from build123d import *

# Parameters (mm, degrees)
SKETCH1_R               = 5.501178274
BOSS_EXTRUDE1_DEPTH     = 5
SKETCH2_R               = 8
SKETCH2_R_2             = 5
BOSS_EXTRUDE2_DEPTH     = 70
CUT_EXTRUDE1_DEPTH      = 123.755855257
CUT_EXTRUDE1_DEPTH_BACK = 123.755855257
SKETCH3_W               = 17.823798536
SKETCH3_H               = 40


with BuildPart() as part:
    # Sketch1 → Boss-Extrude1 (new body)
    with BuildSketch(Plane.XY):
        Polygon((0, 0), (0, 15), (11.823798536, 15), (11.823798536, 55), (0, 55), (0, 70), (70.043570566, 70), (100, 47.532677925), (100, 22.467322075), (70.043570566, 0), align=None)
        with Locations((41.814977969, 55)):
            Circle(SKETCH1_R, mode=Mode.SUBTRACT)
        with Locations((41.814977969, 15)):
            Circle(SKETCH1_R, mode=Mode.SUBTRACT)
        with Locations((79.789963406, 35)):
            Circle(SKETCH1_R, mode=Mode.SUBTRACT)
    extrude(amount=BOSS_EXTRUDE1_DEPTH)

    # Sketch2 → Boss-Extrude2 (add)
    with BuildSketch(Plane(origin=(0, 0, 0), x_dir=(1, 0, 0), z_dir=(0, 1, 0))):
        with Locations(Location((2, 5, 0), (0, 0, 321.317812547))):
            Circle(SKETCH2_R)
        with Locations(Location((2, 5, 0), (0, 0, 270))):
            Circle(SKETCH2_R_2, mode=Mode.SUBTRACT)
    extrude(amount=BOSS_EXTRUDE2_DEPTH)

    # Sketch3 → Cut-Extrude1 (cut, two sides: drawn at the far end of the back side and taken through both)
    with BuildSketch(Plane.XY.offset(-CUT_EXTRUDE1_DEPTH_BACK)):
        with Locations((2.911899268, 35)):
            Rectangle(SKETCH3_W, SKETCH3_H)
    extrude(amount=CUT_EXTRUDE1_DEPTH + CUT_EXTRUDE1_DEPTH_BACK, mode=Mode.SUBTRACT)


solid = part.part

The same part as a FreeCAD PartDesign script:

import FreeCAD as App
import Part
import Sketcher
Q = App.Units.Quantity


def add_polygon(sketch, points):
    """Adds a closed chain of lines whose ends are joined by coincident constraints."""
    first, n = sketch.GeometryCount, len(points)
    for a, b in zip(points, points[1:] + points[:1]):
        sketch.addGeometry(Part.LineSegment(App.Vector(*a, 0), App.Vector(*b, 0)), False)
    for i in range(n):
        sketch.addConstraint(Sketcher.Constraint("Coincident", first + i, 2, first + (i + 1) % n, 1))

doc = App.newDocument("Part")
body = doc.addObject("PartDesign::Body", "Body")

# Sketch on XY plane
sketch1 = body.newObject("Sketcher::SketchObject", "Sketch")
sketch1.AttachmentSupport = (doc.getObject("XY_Plane"), [""])
sketch1.MapMode = "FlatFace"
add_polygon(sketch1, [(0, 15), (0, 0), (70, 0), (100, 22), (100, 48), (70, 70), (0, 70), (0, 55), (12, 55), (12, 15)])  # lines 0-9
sketch1.addGeometry(Part.Circle(App.Vector(42, 15, 0), App.Vector(0, 0, 1), 6), False)  # 10
sketch1.addGeometry(Part.Circle(App.Vector(80, 35, 0), App.Vector(0, 0, 1), 6), False)  # 11
sketch1.addGeometry(Part.Circle(App.Vector(42, 55, 0), App.Vector(0, 0, 1), 6), False)  # 12
sketch1.addConstraint(Sketcher.Constraint("Vertical", 0))
sketch1.addConstraint(Sketcher.Constraint("Horizontal", 1))
sketch1.addConstraint(Sketcher.Constraint("Vertical", 3))
sketch1.addConstraint(Sketcher.Constraint("Horizontal", 5))
sketch1.addConstraint(Sketcher.Constraint("Vertical", 6))
sketch1.addConstraint(Sketcher.Constraint("Horizontal", 7))
sketch1.addConstraint(Sketcher.Constraint("Vertical", 8))
sketch1.addConstraint(Sketcher.Constraint("Horizontal", 9))
sketch1.addConstraint(Sketcher.Constraint("Coincident", 0, 2, -1, 1))
sketch1.addConstraint(Sketcher.Constraint("Equal", 10, 11))
sketch1.addConstraint(Sketcher.Constraint("Equal", 11, 12))
sketch1.addConstraint(Sketcher.Constraint("PointOnObject", 5, 2, -2))
sketch1.addConstraint(Sketcher.Constraint("Horizontal", 12, 3, 6, 2))
sketch1.addConstraint(Sketcher.Constraint("Horizontal", 10, 3, 8, 2))
sketch1.addConstraint(Sketcher.Constraint("Vertical", 10, 3, 12, 3))
sketch1.addConstraint(Sketcher.Constraint("Vertical", 1, 2, 4, 2))
sketch1.addConstraint(Sketcher.Constraint("Equal", 0, 6))
sketch1.addConstraint(Sketcher.Constraint("Equal", 2, 4))
sketch1.addConstraint(Sketcher.Constraint("DistanceY", 0, 2, 0, 1, Q("15 mm")))
sketch1.addConstraint(Sketcher.Constraint("DistanceY", 8, 2, 8, 1, Q("40 mm")))
sketch1.addConstraint(Sketcher.Constraint("DistanceY", -1, 1, 11, 3, Q("35 mm")))
sketch1.addConstraint(Sketcher.Constraint("DistanceX", -1, 1, 2, 2, Q("100 mm")))
sketch1.addConstraint(Sketcher.Constraint("Diameter", 10, Q("11.002357 mm")))
sketch1.addConstraint(Sketcher.Constraint("DistanceX", 7, 1, 7, 2, Q("11.823799 mm")))
sketch1.addConstraint(Sketcher.Constraint("DistanceX", 1, 1, 1, 2, Q("70.043571 mm")))
sketch1.addConstraint(Sketcher.Constraint("DistanceY", 3, 1, 3, 2, Q("25.065356 mm")))
sketch1.addConstraint(Sketcher.Constraint("DistanceX", 7, 2, 12, 3, Q("29.991179 mm")))
sketch1.addConstraint(Sketcher.Constraint("DistanceX", -1, 1, 11, 3, Q("79.789963 mm")))
pad1 = body.newObject("PartDesign::Pad", "Pad")
pad1.Profile = sketch1
pad1.Length = 5

# Sketch on XZ plane
sketch2 = body.newObject("Sketcher::SketchObject", "Sketch001")
sketch2.AttachmentSupport = (doc.getObject("XZ_Plane"), [""])
sketch2.MapMode = "FlatFace"
sketch2.addGeometry(Part.Circle(App.Vector(2, -5, 0), App.Vector(0, 0, 1), 8), False)
sketch2.addGeometry(Part.Circle(App.Vector(2, -5, 0), App.Vector(0, 0, 1), 5), False)
sketch2.addConstraint(Sketcher.Constraint("Coincident", 1, 3, 0, 3))
sketch2.addConstraint(Sketcher.Constraint("Diameter", 0, Q("16 mm")))
sketch2.addConstraint(Sketcher.Constraint("Diameter", 1, Q("10 mm")))
sketch2.addConstraint(Sketcher.Constraint("DistanceX", -1, 1, 0, 3, Q("2 mm")))
sketch2.addConstraint(Sketcher.Constraint("DistanceY", 0, 3, -1, 1, Q("5 mm")))
pad2 = body.newObject("PartDesign::Pad", "Pad001")
pad2.Profile = sketch2
pad2.Length = 70
pad2.Reversed = True

# Sketch on XY plane
sketch3 = body.newObject("Sketcher::SketchObject", "Sketch002")
sketch3.AttachmentSupport = (doc.getObject("XY_Plane"), [""])
sketch3.MapMode = "FlatFace"
add_polygon(sketch3, [(-6, 55), (-6, 15), (12, 15), (12, 55)])  # lines 0-3
sketch3.addConstraint(Sketcher.Constraint("Vertical", 0))
sketch3.addConstraint(Sketcher.Constraint("Horizontal", 1))
sketch3.addConstraint(Sketcher.Constraint("Vertical", 2))
sketch3.addConstraint(Sketcher.Constraint("Horizontal", 3))
sketch3.addConstraint(Sketcher.Constraint("DistanceY", 0, 2, 0, 1, Q("40 mm")))
sketch3.addConstraint(Sketcher.Constraint("DistanceX", 0, 2, -1, 1, Q("6 mm")))
sketch3.addConstraint(Sketcher.Constraint("DistanceY", -1, 1, 0, 2, Q("15 mm")))
sketch3.addConstraint(Sketcher.Constraint("DistanceX", 1, 1, 1, 2, Q("17.823799 mm")))
pocket1 = body.newObject("PartDesign::Pocket", "Pocket")
pocket1.Profile = sketch3
pocket1.Type = "ThroughAll"
pocket1.Midplane = True

doc.recompute()
